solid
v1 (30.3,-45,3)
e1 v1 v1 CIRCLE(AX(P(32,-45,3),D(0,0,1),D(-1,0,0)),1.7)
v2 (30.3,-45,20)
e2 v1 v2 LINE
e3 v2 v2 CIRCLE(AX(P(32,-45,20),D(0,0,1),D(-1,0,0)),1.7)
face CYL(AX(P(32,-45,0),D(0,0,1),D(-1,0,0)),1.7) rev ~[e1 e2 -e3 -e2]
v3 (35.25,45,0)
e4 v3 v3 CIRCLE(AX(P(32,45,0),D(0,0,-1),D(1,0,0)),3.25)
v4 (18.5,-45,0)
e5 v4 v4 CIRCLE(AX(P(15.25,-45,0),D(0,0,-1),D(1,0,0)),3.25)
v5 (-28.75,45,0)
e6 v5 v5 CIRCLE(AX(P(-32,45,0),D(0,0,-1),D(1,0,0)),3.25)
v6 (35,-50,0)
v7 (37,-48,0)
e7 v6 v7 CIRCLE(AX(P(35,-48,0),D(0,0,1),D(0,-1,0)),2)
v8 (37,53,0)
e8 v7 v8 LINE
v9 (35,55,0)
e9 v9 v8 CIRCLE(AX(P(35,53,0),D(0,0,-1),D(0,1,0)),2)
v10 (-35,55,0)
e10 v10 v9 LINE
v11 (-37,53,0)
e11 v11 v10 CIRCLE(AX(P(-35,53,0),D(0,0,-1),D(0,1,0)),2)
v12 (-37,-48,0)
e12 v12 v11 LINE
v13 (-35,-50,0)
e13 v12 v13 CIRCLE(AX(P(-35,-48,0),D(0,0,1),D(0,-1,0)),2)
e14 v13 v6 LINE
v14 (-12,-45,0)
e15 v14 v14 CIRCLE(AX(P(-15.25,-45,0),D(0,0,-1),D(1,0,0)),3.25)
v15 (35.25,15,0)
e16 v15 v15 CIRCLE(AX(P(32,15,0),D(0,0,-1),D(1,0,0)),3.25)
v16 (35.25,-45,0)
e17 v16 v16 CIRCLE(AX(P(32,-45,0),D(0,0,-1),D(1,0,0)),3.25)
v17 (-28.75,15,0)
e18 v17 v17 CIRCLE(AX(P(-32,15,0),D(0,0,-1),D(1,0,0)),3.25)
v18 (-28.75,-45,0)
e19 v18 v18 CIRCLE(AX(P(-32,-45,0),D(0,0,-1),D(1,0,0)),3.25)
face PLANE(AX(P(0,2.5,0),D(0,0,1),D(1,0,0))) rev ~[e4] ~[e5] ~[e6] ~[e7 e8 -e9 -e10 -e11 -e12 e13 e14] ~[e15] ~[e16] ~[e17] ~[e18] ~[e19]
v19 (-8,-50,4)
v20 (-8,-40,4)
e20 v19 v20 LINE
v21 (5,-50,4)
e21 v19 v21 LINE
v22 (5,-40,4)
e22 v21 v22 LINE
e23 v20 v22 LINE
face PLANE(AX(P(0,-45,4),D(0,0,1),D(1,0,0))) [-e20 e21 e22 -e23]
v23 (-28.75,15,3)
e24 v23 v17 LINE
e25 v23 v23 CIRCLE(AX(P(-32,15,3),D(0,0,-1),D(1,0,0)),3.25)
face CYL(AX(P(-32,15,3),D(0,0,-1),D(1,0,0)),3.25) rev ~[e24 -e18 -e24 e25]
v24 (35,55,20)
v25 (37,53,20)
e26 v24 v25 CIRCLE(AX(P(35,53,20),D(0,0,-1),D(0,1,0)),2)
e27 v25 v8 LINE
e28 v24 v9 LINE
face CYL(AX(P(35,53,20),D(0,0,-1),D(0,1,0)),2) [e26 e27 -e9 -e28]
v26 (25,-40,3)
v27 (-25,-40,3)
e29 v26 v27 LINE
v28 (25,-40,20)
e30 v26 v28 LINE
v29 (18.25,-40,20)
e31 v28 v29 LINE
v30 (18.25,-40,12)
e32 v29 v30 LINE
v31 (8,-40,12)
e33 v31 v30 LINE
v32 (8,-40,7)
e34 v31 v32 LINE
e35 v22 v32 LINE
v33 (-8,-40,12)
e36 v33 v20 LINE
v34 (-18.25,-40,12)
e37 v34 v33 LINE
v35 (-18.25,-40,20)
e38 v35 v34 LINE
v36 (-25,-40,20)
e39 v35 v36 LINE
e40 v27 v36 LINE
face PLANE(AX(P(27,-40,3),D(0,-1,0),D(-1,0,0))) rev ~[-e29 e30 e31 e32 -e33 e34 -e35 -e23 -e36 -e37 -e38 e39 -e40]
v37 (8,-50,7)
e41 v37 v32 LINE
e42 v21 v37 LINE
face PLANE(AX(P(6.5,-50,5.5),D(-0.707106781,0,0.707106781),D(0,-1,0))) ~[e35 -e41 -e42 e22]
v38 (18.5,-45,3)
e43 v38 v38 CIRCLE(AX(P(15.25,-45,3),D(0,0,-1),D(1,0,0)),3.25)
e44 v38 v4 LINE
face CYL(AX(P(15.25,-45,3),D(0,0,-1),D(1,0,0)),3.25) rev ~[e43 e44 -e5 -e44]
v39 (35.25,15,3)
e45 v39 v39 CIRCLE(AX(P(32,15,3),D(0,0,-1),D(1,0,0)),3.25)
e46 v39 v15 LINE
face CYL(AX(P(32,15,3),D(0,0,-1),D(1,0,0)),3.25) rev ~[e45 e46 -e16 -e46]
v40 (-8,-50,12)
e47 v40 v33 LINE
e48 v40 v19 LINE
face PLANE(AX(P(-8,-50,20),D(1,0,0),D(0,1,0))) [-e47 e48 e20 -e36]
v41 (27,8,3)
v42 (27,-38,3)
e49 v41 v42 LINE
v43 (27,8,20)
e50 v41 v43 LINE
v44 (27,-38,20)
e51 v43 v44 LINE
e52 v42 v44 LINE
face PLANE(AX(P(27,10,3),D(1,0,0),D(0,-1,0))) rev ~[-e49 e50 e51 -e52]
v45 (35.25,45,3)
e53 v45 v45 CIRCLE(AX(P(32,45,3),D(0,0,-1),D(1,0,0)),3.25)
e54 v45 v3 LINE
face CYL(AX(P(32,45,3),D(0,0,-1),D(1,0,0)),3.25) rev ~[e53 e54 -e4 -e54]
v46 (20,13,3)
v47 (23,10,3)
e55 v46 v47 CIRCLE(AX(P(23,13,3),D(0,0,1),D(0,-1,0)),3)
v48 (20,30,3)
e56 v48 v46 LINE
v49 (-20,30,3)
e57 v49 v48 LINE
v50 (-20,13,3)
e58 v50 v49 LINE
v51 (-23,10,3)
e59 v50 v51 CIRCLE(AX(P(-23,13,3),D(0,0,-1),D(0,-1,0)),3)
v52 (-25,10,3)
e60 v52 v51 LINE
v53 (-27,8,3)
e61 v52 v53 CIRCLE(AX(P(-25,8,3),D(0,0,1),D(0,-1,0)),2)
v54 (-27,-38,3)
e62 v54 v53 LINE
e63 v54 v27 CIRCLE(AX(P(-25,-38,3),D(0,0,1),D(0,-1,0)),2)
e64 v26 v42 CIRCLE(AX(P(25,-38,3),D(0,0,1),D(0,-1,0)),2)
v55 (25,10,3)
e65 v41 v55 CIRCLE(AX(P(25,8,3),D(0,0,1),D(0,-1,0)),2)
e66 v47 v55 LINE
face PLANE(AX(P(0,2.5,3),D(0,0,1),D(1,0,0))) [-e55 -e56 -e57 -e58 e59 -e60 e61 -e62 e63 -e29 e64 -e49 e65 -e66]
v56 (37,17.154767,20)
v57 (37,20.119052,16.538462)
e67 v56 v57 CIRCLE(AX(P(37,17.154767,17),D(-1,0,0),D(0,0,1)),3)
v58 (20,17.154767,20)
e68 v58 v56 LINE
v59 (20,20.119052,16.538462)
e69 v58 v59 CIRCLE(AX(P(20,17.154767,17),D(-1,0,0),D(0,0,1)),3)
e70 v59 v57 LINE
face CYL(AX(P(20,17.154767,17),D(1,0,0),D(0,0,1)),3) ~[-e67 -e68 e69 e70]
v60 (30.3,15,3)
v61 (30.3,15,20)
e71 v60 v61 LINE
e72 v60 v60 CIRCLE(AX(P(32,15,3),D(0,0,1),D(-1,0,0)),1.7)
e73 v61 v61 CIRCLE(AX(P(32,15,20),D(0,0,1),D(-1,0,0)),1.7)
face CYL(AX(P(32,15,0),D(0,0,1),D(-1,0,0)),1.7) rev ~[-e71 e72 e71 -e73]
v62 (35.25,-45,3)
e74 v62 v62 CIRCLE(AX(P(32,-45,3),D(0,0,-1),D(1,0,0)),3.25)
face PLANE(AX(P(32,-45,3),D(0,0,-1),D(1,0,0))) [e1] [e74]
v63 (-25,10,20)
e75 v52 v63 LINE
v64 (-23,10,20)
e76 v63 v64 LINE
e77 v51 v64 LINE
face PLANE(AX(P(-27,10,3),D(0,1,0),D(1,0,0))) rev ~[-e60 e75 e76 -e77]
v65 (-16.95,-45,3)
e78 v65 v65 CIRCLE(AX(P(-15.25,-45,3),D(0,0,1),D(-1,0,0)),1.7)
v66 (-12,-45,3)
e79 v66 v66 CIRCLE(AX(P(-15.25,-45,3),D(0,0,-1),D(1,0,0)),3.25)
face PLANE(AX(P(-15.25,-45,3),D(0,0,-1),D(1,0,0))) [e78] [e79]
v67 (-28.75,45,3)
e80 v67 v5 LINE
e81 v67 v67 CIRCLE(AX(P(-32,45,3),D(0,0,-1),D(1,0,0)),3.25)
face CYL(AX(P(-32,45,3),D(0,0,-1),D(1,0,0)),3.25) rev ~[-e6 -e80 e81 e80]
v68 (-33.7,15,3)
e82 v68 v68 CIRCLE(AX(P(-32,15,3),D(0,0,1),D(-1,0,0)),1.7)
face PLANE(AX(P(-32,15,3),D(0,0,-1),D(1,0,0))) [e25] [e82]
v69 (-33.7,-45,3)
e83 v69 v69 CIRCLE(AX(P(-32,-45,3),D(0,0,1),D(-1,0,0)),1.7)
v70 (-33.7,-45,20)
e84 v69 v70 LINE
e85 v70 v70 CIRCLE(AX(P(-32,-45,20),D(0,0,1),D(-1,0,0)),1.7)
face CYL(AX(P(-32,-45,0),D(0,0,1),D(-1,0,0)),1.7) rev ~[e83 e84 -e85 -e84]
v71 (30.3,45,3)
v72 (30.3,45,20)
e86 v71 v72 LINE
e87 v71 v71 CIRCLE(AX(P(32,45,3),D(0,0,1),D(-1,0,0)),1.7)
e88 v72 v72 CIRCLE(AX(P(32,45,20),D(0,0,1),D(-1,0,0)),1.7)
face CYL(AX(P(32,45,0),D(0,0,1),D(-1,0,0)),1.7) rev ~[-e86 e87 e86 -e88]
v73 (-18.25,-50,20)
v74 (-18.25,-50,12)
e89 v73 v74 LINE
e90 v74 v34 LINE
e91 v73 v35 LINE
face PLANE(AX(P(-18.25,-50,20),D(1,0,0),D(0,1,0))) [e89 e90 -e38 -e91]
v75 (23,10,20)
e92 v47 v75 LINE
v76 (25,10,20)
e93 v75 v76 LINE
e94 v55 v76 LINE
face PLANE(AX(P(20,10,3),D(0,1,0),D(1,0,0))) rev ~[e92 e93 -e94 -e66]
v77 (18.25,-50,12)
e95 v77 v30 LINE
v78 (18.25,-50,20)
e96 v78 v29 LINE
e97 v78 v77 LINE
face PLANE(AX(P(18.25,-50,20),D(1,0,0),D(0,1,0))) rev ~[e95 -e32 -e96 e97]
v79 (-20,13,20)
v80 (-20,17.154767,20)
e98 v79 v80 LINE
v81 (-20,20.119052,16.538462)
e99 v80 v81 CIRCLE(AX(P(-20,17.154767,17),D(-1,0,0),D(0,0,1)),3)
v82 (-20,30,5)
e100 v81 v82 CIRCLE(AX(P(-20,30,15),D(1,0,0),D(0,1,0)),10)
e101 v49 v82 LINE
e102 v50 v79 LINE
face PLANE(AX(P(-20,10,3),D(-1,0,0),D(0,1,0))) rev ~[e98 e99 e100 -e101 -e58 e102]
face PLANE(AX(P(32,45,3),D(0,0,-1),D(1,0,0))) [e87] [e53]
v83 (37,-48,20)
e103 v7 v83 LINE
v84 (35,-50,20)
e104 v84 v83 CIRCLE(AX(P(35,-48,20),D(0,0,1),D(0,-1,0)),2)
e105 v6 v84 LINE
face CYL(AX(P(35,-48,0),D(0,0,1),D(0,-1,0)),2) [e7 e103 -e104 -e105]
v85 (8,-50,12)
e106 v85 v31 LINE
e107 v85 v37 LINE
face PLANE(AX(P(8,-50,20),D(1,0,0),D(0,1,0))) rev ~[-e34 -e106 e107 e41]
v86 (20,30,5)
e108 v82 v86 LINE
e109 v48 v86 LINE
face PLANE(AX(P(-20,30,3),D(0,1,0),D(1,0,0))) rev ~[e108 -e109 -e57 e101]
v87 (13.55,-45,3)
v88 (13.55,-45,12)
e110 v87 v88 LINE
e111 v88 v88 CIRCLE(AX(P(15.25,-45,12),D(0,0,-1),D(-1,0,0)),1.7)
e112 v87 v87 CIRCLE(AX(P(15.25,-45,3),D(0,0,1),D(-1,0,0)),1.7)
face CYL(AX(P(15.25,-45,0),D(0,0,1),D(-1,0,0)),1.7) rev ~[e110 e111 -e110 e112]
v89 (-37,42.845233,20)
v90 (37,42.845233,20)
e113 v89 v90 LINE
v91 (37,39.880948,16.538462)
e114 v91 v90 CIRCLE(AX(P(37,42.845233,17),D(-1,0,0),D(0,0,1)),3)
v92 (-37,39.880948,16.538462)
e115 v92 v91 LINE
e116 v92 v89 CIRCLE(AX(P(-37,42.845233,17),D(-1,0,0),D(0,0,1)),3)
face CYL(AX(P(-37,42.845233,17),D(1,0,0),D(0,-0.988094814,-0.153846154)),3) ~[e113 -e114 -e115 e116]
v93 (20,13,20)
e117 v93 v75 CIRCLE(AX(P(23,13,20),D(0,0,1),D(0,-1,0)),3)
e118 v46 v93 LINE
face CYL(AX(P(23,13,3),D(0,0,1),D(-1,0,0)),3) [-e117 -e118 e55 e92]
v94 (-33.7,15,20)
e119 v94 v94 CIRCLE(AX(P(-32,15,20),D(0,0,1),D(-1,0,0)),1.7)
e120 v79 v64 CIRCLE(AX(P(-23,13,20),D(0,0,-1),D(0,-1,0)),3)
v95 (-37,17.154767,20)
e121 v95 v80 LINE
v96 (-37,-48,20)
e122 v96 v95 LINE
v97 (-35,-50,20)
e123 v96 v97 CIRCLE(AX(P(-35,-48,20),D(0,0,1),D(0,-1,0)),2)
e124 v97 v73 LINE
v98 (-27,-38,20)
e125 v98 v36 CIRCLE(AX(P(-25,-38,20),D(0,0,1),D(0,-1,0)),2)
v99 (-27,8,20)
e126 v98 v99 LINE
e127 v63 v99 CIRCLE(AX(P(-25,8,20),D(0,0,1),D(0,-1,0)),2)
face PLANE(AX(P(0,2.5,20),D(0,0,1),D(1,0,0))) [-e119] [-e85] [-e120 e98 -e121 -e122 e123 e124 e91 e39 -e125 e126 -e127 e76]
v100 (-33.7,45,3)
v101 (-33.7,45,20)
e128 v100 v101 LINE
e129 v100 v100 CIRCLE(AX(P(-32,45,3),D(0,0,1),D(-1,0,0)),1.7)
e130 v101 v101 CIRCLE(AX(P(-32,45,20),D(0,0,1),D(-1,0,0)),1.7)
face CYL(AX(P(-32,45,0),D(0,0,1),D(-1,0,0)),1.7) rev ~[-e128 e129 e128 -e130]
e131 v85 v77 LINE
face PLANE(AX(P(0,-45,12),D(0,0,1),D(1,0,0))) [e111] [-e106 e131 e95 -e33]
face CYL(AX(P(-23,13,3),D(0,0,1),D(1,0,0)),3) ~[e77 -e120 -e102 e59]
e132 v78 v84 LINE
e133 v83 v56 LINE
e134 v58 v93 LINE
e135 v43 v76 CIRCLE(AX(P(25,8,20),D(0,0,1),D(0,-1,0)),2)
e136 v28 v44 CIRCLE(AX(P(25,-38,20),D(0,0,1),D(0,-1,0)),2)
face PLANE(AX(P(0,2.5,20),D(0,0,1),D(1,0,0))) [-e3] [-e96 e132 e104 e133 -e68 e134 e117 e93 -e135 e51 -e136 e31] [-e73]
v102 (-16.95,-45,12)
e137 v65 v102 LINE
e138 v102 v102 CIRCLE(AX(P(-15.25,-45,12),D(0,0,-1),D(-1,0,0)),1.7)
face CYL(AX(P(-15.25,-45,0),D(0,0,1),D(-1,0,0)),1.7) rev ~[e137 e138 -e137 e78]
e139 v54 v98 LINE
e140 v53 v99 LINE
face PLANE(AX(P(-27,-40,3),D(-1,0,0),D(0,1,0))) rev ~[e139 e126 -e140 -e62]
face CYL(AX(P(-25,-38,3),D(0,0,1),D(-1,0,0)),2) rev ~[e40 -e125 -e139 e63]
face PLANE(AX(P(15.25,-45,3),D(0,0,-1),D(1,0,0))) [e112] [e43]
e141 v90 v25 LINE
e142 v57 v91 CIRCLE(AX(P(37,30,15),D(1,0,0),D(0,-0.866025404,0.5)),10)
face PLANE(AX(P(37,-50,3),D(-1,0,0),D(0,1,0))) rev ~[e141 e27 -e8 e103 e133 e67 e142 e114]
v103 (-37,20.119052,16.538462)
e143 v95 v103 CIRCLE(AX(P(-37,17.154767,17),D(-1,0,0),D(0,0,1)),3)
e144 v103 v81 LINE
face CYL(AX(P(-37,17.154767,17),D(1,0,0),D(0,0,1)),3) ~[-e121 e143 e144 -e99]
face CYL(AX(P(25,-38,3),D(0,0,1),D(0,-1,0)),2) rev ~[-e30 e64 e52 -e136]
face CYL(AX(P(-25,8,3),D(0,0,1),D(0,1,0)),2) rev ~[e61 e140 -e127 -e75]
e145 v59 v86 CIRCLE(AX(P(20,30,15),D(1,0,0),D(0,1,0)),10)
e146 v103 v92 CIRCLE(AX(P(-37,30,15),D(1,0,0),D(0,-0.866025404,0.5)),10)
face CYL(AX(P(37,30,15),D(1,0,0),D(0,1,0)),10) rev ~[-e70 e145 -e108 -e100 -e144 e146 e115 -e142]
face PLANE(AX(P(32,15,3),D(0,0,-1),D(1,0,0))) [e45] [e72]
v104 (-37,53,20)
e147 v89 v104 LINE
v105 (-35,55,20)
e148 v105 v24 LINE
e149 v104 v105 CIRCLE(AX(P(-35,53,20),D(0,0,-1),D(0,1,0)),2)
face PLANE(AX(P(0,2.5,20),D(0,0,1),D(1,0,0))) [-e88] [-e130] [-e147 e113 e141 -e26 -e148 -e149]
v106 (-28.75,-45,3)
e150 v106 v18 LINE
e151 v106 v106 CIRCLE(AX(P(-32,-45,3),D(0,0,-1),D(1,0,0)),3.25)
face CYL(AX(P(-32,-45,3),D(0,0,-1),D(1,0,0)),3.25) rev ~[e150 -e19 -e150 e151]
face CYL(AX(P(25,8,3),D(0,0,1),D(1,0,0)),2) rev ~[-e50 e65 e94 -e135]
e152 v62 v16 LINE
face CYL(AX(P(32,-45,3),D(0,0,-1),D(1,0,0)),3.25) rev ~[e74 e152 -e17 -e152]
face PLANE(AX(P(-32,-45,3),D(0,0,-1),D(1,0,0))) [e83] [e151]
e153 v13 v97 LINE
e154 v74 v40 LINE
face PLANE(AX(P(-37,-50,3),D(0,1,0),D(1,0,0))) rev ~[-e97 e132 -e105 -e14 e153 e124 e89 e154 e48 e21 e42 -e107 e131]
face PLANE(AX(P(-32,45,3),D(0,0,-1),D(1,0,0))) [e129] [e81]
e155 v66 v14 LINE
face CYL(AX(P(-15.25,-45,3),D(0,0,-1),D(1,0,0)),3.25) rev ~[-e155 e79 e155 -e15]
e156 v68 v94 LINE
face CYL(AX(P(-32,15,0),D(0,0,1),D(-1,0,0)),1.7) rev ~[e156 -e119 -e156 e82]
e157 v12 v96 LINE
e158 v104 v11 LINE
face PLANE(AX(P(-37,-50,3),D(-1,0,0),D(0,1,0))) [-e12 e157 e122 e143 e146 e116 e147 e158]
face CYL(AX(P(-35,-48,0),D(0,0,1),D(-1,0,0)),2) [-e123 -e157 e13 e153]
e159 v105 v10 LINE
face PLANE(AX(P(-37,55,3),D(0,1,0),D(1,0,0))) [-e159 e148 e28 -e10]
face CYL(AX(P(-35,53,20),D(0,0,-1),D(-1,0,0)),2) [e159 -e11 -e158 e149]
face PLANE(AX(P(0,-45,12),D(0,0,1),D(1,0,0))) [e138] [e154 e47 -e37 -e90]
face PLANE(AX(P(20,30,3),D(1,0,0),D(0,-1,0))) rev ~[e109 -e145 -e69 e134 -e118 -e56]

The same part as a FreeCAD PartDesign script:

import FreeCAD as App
import Part
import Sketcher
from FreeCAD import Vector
Q = App.Units.Quantity


def edges_at(feature, points):
    """Names of the edges that pass closest to the given points."""
    edges = feature.Shape.Edges
    near = lambda p: min(range(len(edges)), key=lambda i: edges[i].distToShape(Part.Vertex(*p))[0])
    return sorted({f"Edge{near(p) + 1}" for p in points})


def add_polygon(sketch, points):
    """Adds a closed chain of lines whose ends are joined by coincident constraints."""
    first, n = sketch.GeometryCount, len(points)
    for a, b in zip(points, points[1:] + points[:1]):
        sketch.addGeometry(Part.LineSegment(App.Vector(*a, 0), App.Vector(*b, 0)), False)
    for i in range(n):
        sketch.addConstraint(Sketcher.Constraint("Coincident", first + i, 2, first + (i + 1) % n, 1))

doc = App.newDocument("Part")
body = doc.addObject("PartDesign::Body", "Body")

sketch1 = doc.addObject("Sketcher::SketchObject", "Sketch")
body.addObject(sketch1)
sketch1.AttachmentSupport = (doc.XY_Plane, [""])
sketch1.MapMode = "FlatFace"
add_polygon(sketch1, [(-37, 55), (-37, -50), (37, -50), (37, 55)])
sketch1.addConstraint([
    Sketcher.Constraint("Vertical", 0),
    Sketcher.Constraint("Horizontal", 1),
    Sketcher.Constraint("Vertical", 2),
    Sketcher.Constraint("Horizontal", 3),
    Sketcher.Constraint("DistanceX", 1, 1, 1, 2, Q("74 mm")),
    Sketcher.Constraint("DistanceY", 0, 2, 0, 1, Q("105 mm")),
    Sketcher.Constraint("DistanceX", 0, 2, -1, 1, Q("37 mm")),
    Sketcher.Constraint("DistanceY", 0, 2, -1, 1, Q("50 mm")),
])
pad1 = doc.addObject("PartDesign::Pad", "Pad")
body.addObject(pad1)
pad1.Profile = sketch1
pad1.Length = 3

sketch2 = doc.addObject("Sketcher::SketchObject", "Sketch001")
body.addObject(sketch2)
sketch2.AttachmentSupport = (doc.XY_Plane, [""])
sketch2.MapMode = "FlatFace"
sketch2.AttachmentOffset = App.Placement(Vector(0, 0, 3), App.Rotation())
add_polygon(sketch2, [(-37, 55), (-37, -50), (37, -50), (37, 55)])
add_polygon(sketch2, [(20, 30), (20, 10), (27, 10), (27, -40), (-27, -40), (-27, 10), (-20, 10), (-20, 30)])
sketch2.addConstraint([
    Sketcher.Constraint("Vertical", 0),
    Sketcher.Constraint("Horizontal", 1),
    Sketcher.Constraint("Vertical", 2),
    Sketcher.Constraint("Horizontal", 3),
    Sketcher.Constraint("Vertical", 4),
    Sketcher.Constraint("Horizontal", 5),
    Sketcher.Constraint("Vertical", 6),
    Sketcher.Constraint("Horizontal", 7),
    Sketcher.Constraint("Vertical", 8),
    Sketcher.Constraint("Horizontal", 9),
    Sketcher.Constraint("Vertical", 10),
    Sketcher.Constraint("Horizontal", 11),
    Sketcher.Constraint("Symmetric", 5, 2, 8, 2, -2),
    Sketcher.Constraint("Equal", 5, 9),
    Sketcher.Constraint("DistanceX", 1, 1, 1, 2, Q("74 mm")),
    Sketcher.Constraint("DistanceX", 5, 1, 5, 2, Q("7 mm")),
    Sketcher.Constraint("DistanceX", 7, 2, 7, 1, Q("54 mm")),
    Sketcher.Constraint("DistanceY", 0, 2, 0, 1, Q("105 mm")),
    Sketcher.Constraint("DistanceY", 4, 2, 4, 1, Q("20 mm")),
    Sketcher.Constraint("DistanceY", 6, 2, 6, 1, Q("50 mm")),
    Sketcher.Constraint("DistanceX", 0, 2, -1, 1, Q("37 mm")),
    Sketcher.Constraint("DistanceY", 0, 2, -1, 1, Q("50 mm")),
    Sketcher.Constraint("DistanceY", -1, 1, 4, 2, Q("10 mm")),
])
pad2 = doc.addObject("PartDesign::Pad", "Pad001")
body.addObject(pad2)
pad2.Profile = sketch2
pad2.Length = 17

sketch3 = doc.addObject("Sketcher::SketchObject", "Sketch002")
body.addObject(sketch3)
sketch3.AttachmentSupport = (doc.YZ_Plane, [""])
sketch3.MapMode = "FlatFace"
sketch3.AttachmentOffset = App.Placement(Vector(0, 0, 37), App.Rotation())
sketch3.addGeometry(Part.Circle(Vector(30, 15, 0), Vector(0, 0, 1), 10), False)
sketch3.addConstraint([
    Sketcher.Constraint("Diameter", 0, Q("20 mm")),
    Sketcher.Constraint("DistanceX", -1, 1, 0, 3, Q("30 mm")),
    Sketcher.Constraint("DistanceY", -1, 1, 0, 3, Q("15 mm")),
])
pocket1 = doc.addObject("PartDesign::Pocket", "Pocket")
body.addObject(pocket1)
pocket1.Profile = sketch3
pocket1.Type = "ThroughAll"

sketch4 = doc.addObject("Sketcher::SketchObject", "Sketch003")
body.addObject(sketch4)
sketch4.AttachmentSupport = (doc.XY_Plane, [""])
sketch4.MapMode = "FlatFace"
sketch4.addGeometry([
    Part.Circle(Vector(32, 15, 0), Vector(0, 0, 1), 1.7),
    Part.Circle(Vector(32, 45, 0), Vector(0, 0, 1), 1.7),
    Part.Circle(Vector(-32, 45, 0), Vector(0, 0, 1), 1.7),
    Part.Circle(Vector(-32, 15, 0), Vector(0, 0, 1), 1.7),
    Part.Circle(Vector(32, -45, 0), Vector(0, 0, 1), 1.7),
    Part.Circle(Vector(-32, -45, 0), Vector(0, 0, 1), 1.7),
    Part.Circle(Vector(-15.2, -45, 0), Vector(0, 0, 1), 1.7),
    Part.Circle(Vector(15.2, -45, 0), Vector(0, 0, 1), 1.7),
], False)
sketch4.addConstraint([
    Sketcher.Constraint("Equal", 0, 1),
    Sketcher.Constraint("Equal", 1, 2),
    Sketcher.Constraint("Equal", 2, 3),
    Sketcher.Constraint("Equal", 3, 4),
    Sketcher.Constraint("Equal", 4, 5),
    Sketcher.Constraint("Equal", 5, 6),
    Sketcher.Constraint("Equal", 6, 7),
    Sketcher.Constraint("Symmetric", 2, 3, 4, 3, -1, 1),
    Sketcher.Constraint("Symmetric", 1, 3, 5, 3, -1, 1),
    Sketcher.Constraint("Symmetric", 1, 3, 2, 3, -2),
    Sketcher.Constraint("Symmetric", 0, 3, 3, 3, -2),
    Sketcher.Constraint("Symmetric", 6, 3, 7, 3, -2),
    Sketcher.Constraint("Horizontal", 5, 3, 6, 3),
    Sketcher.Constraint("Vertical", 0, 3, 1, 3),
    Sketcher.Constraint("Diameter", 0, Q("3.4 mm")),
    Sketcher.Constraint("DistanceX", -1, 1, 0, 3, Q("32 mm")),
    Sketcher.Constraint("DistanceY", -1, 1, 0, 3, Q("15 mm")),
    Sketcher.Constraint("DistanceY", -1, 1, 1, 3, Q("45 mm")),
    Sketcher.Constraint("DistanceX", 6, 3, 7, 3, Q("30.5 mm")),
])
doc.recompute()
hole = doc.addObject("PartDesign::Hole", "Hole")
body.addObject(hole)
hole.Profile = sketch4
hole.ThreadType = "None"
hole.Diameter = 3.4
hole.DepthType = "ThroughAll"
hole.HoleCutType = "Counterbore"
hole.HoleCutDiameter = 6.5
hole.HoleCutDepth = 3
hole.Reversed = True
doc.recompute()

fillet = doc.addObject("PartDesign::Fillet", "Fillet")
body.addObject(fillet)
fillet.Base = (hole, edges_at(hole, [
    (37, 55, 10),
    (-37, 55, 10),
    (37, -50, 10),
    (-37, -50, 10),
]))
fillet.Radius = 2
doc.recompute()

fillet2 = doc.addObject("PartDesign::Fillet", "Fillet001")
body.addObject(fillet2)
fillet2.Base = (fillet, edges_at(fillet, [(-20, 10, 11.5), (20, 10, 11.5)]))
fillet2.Radius = 3
doc.recompute()

fillet3 = doc.addObject("PartDesign::Fillet", "Fillet002")
body.addObject(fillet3)
fillet3.Base = (fillet2, edges_at(fillet2, [
    (27, 10, 11.5),
    (-27, 10, 11.5),
    (-27, -40, 11.5),
    (27, -40, 11.5),
]))
fillet3.Radius = 2

sketch5 = doc.addObject("Sketcher::SketchObject", "Sketch004")
body.addObject(sketch5)
sketch5.AttachmentSupport = (doc.XY_Plane, [""])
sketch5.MapMode = "FlatFace"
sketch5.AttachmentOffset = App.Placement(Vector(0, 0, 20), App.Rotation())
add_polygon(sketch5, [(-18.2, -40), (-18.2, -50), (18.2, -50), (18.2, -40)])
sketch5.addGeometry(Part.Circle(Vector(-15.2, -45, 0), Vector(0, 0, 1), 1.7), False)
sketch5.addGeometry(Part.Circle(Vector(15.2, -45, 0), Vector(0, 0, 1), 1.7), False)
sketch5.addConstraint([
    Sketcher.Constraint("Vertical", 0),
    Sketcher.Constraint("Horizontal", 1),
    Sketcher.Constraint("Vertical", 2),
    Sketcher.Constraint("Horizontal", 3),
    Sketcher.Constraint("Equal", 4, 5),
    Sketcher.Constraint("Symmetric", 4, 3, 5, 3, -2),
    Sketcher.Constraint("Diameter", 4, Q("3.4 mm")),
    Sketcher.Constraint("DistanceY", 0, 2, 0, 1, Q("10 mm")),
    Sketcher.Constraint("DistanceX", 1, 1, 1, 2, Q("36.5 mm")),
    Sketcher.Constraint("DistanceY", 4, 3, -1, 1, Q("45 mm")),
    Sketcher.Constraint("DistanceY", 0, 2, -1, 1, Q("50 mm")),
    Sketcher.Constraint("DistanceX", 0, 2, 4, 3, Q("3 mm")),
    Sketcher.Constraint("DistanceX", 5, 3, 1, 2, Q("3 mm")),
])
pocket2 = doc.addObject("PartDesign::Pocket", "Pocket001")
body.addObject(pocket2)
pocket2.Profile = sketch5
pocket2.Length = 8

sketch6 = doc.addObject("Sketcher::SketchObject", "Sketch005")
body.addObject(sketch6)
sketch6.AttachmentSupport = (doc.XY_Plane, [""])
sketch6.MapMode = "FlatFace"
sketch6.AttachmentOffset = App.Placement(Vector(0, 0, 20), App.Rotation())
add_polygon(sketch6, [(-8, -40), (-8, -50), (8, -50), (8, -40)])
sketch6.addConstraint([
    Sketcher.Constraint("Vertical", 0),
    Sketcher.Constraint("Horizontal", 1),
    Sketcher.Constraint("Vertical", 2),
    Sketcher.Constraint("Horizontal", 3),
    Sketcher.Constraint("DistanceX", 1, 1, 1, 2, Q("16 mm")),
    Sketcher.Constraint("DistanceY", 0, 2, 0, 1, Q("10 mm")),
    Sketcher.Constraint("DistanceX", 0, 2, -1, 1, Q("8 mm")),
    Sketcher.Constraint("DistanceY", 0, 2, -1, 1, Q("50 mm")),
])
pocket3 = doc.addObject("PartDesign::Pocket", "Pocket002")
body.addObject(pocket3)
pocket3.Profile = sketch6
pocket3.Length = 16
doc.recompute()

chamfer = doc.addObject("PartDesign::Chamfer", "Chamfer")
body.addObject(chamfer)
chamfer.Base = (pocket3, edges_at(pocket3, [(8, -45, 4)]))
chamfer.Size = 3
doc.recompute()

fillet4 = doc.addObject("PartDesign::Fillet", "Fillet003")
body.addObject(fillet4)
fillet4.Base = (chamfer, edges_at(chamfer, [(0, 38.66, 20), (-28.5, 21.34, 20), (28.5, 21.34, 20)]))
fillet4.Radius = 3

doc.recompute()
